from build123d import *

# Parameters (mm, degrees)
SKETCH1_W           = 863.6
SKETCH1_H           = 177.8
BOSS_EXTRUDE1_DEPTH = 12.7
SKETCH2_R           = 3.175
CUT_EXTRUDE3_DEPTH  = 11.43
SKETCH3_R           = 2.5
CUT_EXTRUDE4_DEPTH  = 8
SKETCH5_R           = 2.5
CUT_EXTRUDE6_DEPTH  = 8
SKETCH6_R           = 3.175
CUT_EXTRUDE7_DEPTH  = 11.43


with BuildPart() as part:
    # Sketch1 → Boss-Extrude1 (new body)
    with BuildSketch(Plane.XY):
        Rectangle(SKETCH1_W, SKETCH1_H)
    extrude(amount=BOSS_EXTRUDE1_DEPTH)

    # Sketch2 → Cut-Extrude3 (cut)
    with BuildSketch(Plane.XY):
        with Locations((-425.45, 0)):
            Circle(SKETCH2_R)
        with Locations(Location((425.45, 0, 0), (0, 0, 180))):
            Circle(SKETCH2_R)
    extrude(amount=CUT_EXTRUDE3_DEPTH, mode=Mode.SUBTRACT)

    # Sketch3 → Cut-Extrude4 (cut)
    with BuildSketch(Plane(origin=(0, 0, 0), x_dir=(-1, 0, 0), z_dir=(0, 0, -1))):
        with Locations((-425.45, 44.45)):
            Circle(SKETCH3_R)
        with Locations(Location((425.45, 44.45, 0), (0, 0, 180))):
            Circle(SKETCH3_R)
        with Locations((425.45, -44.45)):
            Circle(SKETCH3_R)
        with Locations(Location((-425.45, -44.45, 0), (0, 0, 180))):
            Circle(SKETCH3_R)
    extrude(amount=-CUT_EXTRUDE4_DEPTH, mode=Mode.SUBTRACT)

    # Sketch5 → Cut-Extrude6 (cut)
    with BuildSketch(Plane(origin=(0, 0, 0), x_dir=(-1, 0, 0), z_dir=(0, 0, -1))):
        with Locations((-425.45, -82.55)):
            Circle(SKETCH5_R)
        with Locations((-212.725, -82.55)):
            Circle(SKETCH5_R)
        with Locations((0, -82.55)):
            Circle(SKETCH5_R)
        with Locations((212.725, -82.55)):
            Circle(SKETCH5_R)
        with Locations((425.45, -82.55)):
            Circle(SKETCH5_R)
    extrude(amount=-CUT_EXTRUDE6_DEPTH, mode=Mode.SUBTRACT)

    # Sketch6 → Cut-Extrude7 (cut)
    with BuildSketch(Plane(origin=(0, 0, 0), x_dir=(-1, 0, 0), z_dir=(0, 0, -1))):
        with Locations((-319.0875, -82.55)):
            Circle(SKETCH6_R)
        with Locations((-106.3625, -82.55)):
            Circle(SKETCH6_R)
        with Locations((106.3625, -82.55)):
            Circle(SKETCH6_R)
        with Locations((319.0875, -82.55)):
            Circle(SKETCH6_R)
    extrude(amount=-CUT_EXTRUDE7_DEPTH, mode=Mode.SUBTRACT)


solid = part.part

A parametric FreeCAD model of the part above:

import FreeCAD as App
import Part
import Sketcher

V = App.Vector
Q = App.Units.Quantity

doc = App.newDocument("Part")
body = doc.addObject("PartDesign::Body", "Body")

# Sketch on XY plane
sketch1 = doc.addObject("Sketcher::SketchObject", "Sketch")
body.addObject(sketch1)
sketch1.AttachmentSupport = (doc.XY_Plane, [""])
sketch1.MapMode = "FlatFace"
sketch1.addGeometry([
    Part.LineSegment(V(-431.8, 88.9, 0), V(-431.8, -88.9, 0)),
    Part.LineSegment(V(-431.8, -88.9, 0), V(431.8, -88.9, 0)),
    Part.LineSegment(V(431.8, -88.9, 0), V(431.8, 88.9, 0)),
    Part.LineSegment(V(431.8, 88.9, 0), V(-431.8, 88.9, 0)),
], False)
sketch1.addConstraint([
    Sketcher.Constraint("Coincident", 0, 2, 1, 1),
    Sketcher.Constraint("Coincident", 1, 2, 2, 1),
    Sketcher.Constraint("Coincident", 2, 2, 3, 1),
    Sketcher.Constraint("Coincident", 3, 2, 0, 1),
    Sketcher.Constraint("Vertical", 0),
    Sketcher.Constraint("Horizontal", 1),
    Sketcher.Constraint("Vertical", 2),
    Sketcher.Constraint("Horizontal", 3),
    Sketcher.Constraint("Symmetric", 0, 2, 2, 2, -1, 1),
    Sketcher.Constraint("DistanceX", 1, 1, 1, 2, Q("34 in")),
    Sketcher.Constraint("DistanceY", 0, 2, 0, 1, Q("7 in")),
])
pad1 = doc.addObject("PartDesign::Pad", "Pad")
body.addObject(pad1)
pad1.Profile = sketch1
pad1.Length = Q("0.5 in")

# Sketch on XY plane
sketch2 = doc.addObject("Sketcher::SketchObject", "Sketch001")
body.addObject(sketch2)
sketch2.AttachmentSupport = (doc.XY_Plane, [""])
sketch2.MapMode = "FlatFace"
sketch2.addGeometry([
    Part.Circle(V(-425.45, 0, 0), V(0, 0, 1), 3.175),
    Part.Circle(V(425.45, 0, 0), V(0, 0, 1), 3.175),
], False)
sketch2.addConstraint([
    Sketcher.Constraint("Equal", 0, 1),
    Sketcher.Constraint("Symmetric", 0, 3, 1, 3, -1, 1),
    Sketcher.Constraint("PointOnObject", 0, 3, -1),
    Sketcher.Constraint("Diameter", 0, Q("0.25 in")),
    Sketcher.Constraint("DistanceX", 0, 3, 1, 3, Q("33.5 in")),
])
pocket1 = doc.addObject("PartDesign::Pocket", "Pocket")
body.addObject(pocket1)
pocket1.Profile = sketch2
pocket1.Length = Q("0.45 in")
pocket1.Reversed = True

# Sketch on XY plane
sketch3 = doc.addObject("Sketcher::SketchObject", "Sketch002")
body.addObject(sketch3)
sketch3.AttachmentSupport = (doc.XY_Plane, [""])
sketch3.MapMode = "FlatFace"
sketch3.addGeometry([
    Part.Circle(V(425.45, 44.45, 0), V(0, 0, 1), 2.5),
    Part.Circle(V(-425.45, 44.45, 0), V(0, 0, 1), 2.5),
    Part.Circle(V(-425.45, -44.45, 0), V(0, 0, 1), 2.5),
    Part.Circle(V(425.45, -44.45, 0), V(0, 0, 1), 2.5),
], False)
sketch3.addConstraint([
    Sketcher.Constraint("Equal", 0, 1),
    Sketcher.Constraint("Equal", 1, 2),
    Sketcher.Constraint("Equal", 2, 3),
    Sketcher.Constraint("Symmetric", 0, 3, 2, 3, -1, 1),
    Sketcher.Constraint("Symmetric", 1, 3, 3, 3, -1, 1),
    Sketcher.Constraint("Symmetric", 0, 3, 1, 3, -2),
    Sketcher.Constraint("DistanceX", 1, 3, 0, 3, Q("33.5 in")),
    Sketcher.Constraint("DistanceY", 2, 3, 1, 3, Q("3.5 in")),
    Sketcher.Constraint("Diameter", 0, 5.0),
])
pocket2 = doc.addObject("PartDesign::Pocket", "Pocket001")
body.addObject(pocket2)
pocket2.Profile = sketch3
pocket2.Length = 8
pocket2.Reversed = True

# Sketch on XY plane
sketch4 = doc.addObject("Sketcher::SketchObject", "Sketch003")
body.addObject(sketch4)
sketch4.AttachmentSupport = (doc.XY_Plane, [""])
sketch4.MapMode = "FlatFace"
sketch4.addGeometry([
    Part.Circle(V(425.45, -82.55, 0), V(0, 0, 1), 2.5),  # 0
    Part.Circle(V(212.725, -82.55, 0), V(0, 0, 1), 2.5),  # 1
    Part.Circle(V(0, -82.55, 0), V(0, 0, 1), 2.5),  # 2
    Part.Circle(V(-212.725, -82.55, 0), V(0, 0, 1), 2.5),  # 3
    Part.Circle(V(-425.45, -82.55, 0), V(0, 0, 1), 2.5),  # 4
], False)
sketch4.addConstraint([
    Sketcher.Constraint("Equal", 0, 1),
    Sketcher.Constraint("Equal", 1, 2),
    Sketcher.Constraint("Equal", 2, 3),
    Sketcher.Constraint("Equal", 3, 4),
    Sketcher.Constraint("Symmetric", 1, 3, 3, 3, -2),
    Sketcher.Constraint("Symmetric", 0, 3, 4, 3, -2),
    Sketcher.Constraint("PointOnObject", 2, 3, -2),
    Sketcher.Constraint("Horizontal", 0, 3, 1, 3),
    Sketcher.Constraint("Horizontal", 1, 3, 2, 3),
    Sketcher.Constraint("DistanceX", 4, 3, 0, 3, Q("33.5 in")),
    Sketcher.Constraint("Diameter", 0, 5.0),
    Sketcher.Constraint("DistanceY", 0, 3, -1, 1, Q("3.25 in")),
    Sketcher.Constraint("DistanceX", 3, 3, 1, 3, Q("16.75 in")),
])
pocket3 = doc.addObject("PartDesign::Pocket", "Pocket002")
body.addObject(pocket3)
pocket3.Profile = sketch4
pocket3.Length = 8
pocket3.Reversed = True

# Sketch on XY plane
sketch5 = doc.addObject("Sketcher::SketchObject", "Sketch004")
body.addObject(sketch5)
sketch5.AttachmentSupport = (doc.XY_Plane, [""])
sketch5.MapMode = "FlatFace"
sketch5.addGeometry([
    Part.Circle(V(319.0875, -82.55, 0), V(0, 0, 1), 3.175),
    Part.Circle(V(106.3625, -82.55, 0), V(0, 0, 1), 3.175),
    Part.Circle(V(-106.3625, -82.55, 0), V(0, 0, 1), 3.175),
    Part.Circle(V(-319.0875, -82.55, 0), V(0, 0, 1), 3.175),
], False)
sketch5.addConstraint([
    Sketcher.Constraint("Equal", 0, 1),
    Sketcher.Constraint("Equal", 1, 2),
    Sketcher.Constraint("Equal", 2, 3),
    Sketcher.Constraint("Symmetric", 1, 3, 2, 3, -2),
    Sketcher.Constraint("Symmetric", 0, 3, 3, 3, -2),
    Sketcher.Constraint("Horizontal", 0, 3, 1, 3),
    Sketcher.Constraint("Diameter", 0, Q("0.25 in")),
    Sketcher.Constraint("DistanceY", 0, 3, -1, 1, Q("3.25 in")),
    Sketcher.Constraint("DistanceX", 2, 3, 0, 3, Q("16.75 in")),
    Sketcher.Constraint("DistanceX", -1, 1, 0, 3, Q("12.5625 in")),
])
pocket4 = doc.addObject("PartDesign::Pocket", "Pocket003")
body.addObject(pocket4)
pocket4.Profile = sketch5
pocket4.Length = Q("0.45 in")
pocket4.Reversed = True

doc.recompute()
